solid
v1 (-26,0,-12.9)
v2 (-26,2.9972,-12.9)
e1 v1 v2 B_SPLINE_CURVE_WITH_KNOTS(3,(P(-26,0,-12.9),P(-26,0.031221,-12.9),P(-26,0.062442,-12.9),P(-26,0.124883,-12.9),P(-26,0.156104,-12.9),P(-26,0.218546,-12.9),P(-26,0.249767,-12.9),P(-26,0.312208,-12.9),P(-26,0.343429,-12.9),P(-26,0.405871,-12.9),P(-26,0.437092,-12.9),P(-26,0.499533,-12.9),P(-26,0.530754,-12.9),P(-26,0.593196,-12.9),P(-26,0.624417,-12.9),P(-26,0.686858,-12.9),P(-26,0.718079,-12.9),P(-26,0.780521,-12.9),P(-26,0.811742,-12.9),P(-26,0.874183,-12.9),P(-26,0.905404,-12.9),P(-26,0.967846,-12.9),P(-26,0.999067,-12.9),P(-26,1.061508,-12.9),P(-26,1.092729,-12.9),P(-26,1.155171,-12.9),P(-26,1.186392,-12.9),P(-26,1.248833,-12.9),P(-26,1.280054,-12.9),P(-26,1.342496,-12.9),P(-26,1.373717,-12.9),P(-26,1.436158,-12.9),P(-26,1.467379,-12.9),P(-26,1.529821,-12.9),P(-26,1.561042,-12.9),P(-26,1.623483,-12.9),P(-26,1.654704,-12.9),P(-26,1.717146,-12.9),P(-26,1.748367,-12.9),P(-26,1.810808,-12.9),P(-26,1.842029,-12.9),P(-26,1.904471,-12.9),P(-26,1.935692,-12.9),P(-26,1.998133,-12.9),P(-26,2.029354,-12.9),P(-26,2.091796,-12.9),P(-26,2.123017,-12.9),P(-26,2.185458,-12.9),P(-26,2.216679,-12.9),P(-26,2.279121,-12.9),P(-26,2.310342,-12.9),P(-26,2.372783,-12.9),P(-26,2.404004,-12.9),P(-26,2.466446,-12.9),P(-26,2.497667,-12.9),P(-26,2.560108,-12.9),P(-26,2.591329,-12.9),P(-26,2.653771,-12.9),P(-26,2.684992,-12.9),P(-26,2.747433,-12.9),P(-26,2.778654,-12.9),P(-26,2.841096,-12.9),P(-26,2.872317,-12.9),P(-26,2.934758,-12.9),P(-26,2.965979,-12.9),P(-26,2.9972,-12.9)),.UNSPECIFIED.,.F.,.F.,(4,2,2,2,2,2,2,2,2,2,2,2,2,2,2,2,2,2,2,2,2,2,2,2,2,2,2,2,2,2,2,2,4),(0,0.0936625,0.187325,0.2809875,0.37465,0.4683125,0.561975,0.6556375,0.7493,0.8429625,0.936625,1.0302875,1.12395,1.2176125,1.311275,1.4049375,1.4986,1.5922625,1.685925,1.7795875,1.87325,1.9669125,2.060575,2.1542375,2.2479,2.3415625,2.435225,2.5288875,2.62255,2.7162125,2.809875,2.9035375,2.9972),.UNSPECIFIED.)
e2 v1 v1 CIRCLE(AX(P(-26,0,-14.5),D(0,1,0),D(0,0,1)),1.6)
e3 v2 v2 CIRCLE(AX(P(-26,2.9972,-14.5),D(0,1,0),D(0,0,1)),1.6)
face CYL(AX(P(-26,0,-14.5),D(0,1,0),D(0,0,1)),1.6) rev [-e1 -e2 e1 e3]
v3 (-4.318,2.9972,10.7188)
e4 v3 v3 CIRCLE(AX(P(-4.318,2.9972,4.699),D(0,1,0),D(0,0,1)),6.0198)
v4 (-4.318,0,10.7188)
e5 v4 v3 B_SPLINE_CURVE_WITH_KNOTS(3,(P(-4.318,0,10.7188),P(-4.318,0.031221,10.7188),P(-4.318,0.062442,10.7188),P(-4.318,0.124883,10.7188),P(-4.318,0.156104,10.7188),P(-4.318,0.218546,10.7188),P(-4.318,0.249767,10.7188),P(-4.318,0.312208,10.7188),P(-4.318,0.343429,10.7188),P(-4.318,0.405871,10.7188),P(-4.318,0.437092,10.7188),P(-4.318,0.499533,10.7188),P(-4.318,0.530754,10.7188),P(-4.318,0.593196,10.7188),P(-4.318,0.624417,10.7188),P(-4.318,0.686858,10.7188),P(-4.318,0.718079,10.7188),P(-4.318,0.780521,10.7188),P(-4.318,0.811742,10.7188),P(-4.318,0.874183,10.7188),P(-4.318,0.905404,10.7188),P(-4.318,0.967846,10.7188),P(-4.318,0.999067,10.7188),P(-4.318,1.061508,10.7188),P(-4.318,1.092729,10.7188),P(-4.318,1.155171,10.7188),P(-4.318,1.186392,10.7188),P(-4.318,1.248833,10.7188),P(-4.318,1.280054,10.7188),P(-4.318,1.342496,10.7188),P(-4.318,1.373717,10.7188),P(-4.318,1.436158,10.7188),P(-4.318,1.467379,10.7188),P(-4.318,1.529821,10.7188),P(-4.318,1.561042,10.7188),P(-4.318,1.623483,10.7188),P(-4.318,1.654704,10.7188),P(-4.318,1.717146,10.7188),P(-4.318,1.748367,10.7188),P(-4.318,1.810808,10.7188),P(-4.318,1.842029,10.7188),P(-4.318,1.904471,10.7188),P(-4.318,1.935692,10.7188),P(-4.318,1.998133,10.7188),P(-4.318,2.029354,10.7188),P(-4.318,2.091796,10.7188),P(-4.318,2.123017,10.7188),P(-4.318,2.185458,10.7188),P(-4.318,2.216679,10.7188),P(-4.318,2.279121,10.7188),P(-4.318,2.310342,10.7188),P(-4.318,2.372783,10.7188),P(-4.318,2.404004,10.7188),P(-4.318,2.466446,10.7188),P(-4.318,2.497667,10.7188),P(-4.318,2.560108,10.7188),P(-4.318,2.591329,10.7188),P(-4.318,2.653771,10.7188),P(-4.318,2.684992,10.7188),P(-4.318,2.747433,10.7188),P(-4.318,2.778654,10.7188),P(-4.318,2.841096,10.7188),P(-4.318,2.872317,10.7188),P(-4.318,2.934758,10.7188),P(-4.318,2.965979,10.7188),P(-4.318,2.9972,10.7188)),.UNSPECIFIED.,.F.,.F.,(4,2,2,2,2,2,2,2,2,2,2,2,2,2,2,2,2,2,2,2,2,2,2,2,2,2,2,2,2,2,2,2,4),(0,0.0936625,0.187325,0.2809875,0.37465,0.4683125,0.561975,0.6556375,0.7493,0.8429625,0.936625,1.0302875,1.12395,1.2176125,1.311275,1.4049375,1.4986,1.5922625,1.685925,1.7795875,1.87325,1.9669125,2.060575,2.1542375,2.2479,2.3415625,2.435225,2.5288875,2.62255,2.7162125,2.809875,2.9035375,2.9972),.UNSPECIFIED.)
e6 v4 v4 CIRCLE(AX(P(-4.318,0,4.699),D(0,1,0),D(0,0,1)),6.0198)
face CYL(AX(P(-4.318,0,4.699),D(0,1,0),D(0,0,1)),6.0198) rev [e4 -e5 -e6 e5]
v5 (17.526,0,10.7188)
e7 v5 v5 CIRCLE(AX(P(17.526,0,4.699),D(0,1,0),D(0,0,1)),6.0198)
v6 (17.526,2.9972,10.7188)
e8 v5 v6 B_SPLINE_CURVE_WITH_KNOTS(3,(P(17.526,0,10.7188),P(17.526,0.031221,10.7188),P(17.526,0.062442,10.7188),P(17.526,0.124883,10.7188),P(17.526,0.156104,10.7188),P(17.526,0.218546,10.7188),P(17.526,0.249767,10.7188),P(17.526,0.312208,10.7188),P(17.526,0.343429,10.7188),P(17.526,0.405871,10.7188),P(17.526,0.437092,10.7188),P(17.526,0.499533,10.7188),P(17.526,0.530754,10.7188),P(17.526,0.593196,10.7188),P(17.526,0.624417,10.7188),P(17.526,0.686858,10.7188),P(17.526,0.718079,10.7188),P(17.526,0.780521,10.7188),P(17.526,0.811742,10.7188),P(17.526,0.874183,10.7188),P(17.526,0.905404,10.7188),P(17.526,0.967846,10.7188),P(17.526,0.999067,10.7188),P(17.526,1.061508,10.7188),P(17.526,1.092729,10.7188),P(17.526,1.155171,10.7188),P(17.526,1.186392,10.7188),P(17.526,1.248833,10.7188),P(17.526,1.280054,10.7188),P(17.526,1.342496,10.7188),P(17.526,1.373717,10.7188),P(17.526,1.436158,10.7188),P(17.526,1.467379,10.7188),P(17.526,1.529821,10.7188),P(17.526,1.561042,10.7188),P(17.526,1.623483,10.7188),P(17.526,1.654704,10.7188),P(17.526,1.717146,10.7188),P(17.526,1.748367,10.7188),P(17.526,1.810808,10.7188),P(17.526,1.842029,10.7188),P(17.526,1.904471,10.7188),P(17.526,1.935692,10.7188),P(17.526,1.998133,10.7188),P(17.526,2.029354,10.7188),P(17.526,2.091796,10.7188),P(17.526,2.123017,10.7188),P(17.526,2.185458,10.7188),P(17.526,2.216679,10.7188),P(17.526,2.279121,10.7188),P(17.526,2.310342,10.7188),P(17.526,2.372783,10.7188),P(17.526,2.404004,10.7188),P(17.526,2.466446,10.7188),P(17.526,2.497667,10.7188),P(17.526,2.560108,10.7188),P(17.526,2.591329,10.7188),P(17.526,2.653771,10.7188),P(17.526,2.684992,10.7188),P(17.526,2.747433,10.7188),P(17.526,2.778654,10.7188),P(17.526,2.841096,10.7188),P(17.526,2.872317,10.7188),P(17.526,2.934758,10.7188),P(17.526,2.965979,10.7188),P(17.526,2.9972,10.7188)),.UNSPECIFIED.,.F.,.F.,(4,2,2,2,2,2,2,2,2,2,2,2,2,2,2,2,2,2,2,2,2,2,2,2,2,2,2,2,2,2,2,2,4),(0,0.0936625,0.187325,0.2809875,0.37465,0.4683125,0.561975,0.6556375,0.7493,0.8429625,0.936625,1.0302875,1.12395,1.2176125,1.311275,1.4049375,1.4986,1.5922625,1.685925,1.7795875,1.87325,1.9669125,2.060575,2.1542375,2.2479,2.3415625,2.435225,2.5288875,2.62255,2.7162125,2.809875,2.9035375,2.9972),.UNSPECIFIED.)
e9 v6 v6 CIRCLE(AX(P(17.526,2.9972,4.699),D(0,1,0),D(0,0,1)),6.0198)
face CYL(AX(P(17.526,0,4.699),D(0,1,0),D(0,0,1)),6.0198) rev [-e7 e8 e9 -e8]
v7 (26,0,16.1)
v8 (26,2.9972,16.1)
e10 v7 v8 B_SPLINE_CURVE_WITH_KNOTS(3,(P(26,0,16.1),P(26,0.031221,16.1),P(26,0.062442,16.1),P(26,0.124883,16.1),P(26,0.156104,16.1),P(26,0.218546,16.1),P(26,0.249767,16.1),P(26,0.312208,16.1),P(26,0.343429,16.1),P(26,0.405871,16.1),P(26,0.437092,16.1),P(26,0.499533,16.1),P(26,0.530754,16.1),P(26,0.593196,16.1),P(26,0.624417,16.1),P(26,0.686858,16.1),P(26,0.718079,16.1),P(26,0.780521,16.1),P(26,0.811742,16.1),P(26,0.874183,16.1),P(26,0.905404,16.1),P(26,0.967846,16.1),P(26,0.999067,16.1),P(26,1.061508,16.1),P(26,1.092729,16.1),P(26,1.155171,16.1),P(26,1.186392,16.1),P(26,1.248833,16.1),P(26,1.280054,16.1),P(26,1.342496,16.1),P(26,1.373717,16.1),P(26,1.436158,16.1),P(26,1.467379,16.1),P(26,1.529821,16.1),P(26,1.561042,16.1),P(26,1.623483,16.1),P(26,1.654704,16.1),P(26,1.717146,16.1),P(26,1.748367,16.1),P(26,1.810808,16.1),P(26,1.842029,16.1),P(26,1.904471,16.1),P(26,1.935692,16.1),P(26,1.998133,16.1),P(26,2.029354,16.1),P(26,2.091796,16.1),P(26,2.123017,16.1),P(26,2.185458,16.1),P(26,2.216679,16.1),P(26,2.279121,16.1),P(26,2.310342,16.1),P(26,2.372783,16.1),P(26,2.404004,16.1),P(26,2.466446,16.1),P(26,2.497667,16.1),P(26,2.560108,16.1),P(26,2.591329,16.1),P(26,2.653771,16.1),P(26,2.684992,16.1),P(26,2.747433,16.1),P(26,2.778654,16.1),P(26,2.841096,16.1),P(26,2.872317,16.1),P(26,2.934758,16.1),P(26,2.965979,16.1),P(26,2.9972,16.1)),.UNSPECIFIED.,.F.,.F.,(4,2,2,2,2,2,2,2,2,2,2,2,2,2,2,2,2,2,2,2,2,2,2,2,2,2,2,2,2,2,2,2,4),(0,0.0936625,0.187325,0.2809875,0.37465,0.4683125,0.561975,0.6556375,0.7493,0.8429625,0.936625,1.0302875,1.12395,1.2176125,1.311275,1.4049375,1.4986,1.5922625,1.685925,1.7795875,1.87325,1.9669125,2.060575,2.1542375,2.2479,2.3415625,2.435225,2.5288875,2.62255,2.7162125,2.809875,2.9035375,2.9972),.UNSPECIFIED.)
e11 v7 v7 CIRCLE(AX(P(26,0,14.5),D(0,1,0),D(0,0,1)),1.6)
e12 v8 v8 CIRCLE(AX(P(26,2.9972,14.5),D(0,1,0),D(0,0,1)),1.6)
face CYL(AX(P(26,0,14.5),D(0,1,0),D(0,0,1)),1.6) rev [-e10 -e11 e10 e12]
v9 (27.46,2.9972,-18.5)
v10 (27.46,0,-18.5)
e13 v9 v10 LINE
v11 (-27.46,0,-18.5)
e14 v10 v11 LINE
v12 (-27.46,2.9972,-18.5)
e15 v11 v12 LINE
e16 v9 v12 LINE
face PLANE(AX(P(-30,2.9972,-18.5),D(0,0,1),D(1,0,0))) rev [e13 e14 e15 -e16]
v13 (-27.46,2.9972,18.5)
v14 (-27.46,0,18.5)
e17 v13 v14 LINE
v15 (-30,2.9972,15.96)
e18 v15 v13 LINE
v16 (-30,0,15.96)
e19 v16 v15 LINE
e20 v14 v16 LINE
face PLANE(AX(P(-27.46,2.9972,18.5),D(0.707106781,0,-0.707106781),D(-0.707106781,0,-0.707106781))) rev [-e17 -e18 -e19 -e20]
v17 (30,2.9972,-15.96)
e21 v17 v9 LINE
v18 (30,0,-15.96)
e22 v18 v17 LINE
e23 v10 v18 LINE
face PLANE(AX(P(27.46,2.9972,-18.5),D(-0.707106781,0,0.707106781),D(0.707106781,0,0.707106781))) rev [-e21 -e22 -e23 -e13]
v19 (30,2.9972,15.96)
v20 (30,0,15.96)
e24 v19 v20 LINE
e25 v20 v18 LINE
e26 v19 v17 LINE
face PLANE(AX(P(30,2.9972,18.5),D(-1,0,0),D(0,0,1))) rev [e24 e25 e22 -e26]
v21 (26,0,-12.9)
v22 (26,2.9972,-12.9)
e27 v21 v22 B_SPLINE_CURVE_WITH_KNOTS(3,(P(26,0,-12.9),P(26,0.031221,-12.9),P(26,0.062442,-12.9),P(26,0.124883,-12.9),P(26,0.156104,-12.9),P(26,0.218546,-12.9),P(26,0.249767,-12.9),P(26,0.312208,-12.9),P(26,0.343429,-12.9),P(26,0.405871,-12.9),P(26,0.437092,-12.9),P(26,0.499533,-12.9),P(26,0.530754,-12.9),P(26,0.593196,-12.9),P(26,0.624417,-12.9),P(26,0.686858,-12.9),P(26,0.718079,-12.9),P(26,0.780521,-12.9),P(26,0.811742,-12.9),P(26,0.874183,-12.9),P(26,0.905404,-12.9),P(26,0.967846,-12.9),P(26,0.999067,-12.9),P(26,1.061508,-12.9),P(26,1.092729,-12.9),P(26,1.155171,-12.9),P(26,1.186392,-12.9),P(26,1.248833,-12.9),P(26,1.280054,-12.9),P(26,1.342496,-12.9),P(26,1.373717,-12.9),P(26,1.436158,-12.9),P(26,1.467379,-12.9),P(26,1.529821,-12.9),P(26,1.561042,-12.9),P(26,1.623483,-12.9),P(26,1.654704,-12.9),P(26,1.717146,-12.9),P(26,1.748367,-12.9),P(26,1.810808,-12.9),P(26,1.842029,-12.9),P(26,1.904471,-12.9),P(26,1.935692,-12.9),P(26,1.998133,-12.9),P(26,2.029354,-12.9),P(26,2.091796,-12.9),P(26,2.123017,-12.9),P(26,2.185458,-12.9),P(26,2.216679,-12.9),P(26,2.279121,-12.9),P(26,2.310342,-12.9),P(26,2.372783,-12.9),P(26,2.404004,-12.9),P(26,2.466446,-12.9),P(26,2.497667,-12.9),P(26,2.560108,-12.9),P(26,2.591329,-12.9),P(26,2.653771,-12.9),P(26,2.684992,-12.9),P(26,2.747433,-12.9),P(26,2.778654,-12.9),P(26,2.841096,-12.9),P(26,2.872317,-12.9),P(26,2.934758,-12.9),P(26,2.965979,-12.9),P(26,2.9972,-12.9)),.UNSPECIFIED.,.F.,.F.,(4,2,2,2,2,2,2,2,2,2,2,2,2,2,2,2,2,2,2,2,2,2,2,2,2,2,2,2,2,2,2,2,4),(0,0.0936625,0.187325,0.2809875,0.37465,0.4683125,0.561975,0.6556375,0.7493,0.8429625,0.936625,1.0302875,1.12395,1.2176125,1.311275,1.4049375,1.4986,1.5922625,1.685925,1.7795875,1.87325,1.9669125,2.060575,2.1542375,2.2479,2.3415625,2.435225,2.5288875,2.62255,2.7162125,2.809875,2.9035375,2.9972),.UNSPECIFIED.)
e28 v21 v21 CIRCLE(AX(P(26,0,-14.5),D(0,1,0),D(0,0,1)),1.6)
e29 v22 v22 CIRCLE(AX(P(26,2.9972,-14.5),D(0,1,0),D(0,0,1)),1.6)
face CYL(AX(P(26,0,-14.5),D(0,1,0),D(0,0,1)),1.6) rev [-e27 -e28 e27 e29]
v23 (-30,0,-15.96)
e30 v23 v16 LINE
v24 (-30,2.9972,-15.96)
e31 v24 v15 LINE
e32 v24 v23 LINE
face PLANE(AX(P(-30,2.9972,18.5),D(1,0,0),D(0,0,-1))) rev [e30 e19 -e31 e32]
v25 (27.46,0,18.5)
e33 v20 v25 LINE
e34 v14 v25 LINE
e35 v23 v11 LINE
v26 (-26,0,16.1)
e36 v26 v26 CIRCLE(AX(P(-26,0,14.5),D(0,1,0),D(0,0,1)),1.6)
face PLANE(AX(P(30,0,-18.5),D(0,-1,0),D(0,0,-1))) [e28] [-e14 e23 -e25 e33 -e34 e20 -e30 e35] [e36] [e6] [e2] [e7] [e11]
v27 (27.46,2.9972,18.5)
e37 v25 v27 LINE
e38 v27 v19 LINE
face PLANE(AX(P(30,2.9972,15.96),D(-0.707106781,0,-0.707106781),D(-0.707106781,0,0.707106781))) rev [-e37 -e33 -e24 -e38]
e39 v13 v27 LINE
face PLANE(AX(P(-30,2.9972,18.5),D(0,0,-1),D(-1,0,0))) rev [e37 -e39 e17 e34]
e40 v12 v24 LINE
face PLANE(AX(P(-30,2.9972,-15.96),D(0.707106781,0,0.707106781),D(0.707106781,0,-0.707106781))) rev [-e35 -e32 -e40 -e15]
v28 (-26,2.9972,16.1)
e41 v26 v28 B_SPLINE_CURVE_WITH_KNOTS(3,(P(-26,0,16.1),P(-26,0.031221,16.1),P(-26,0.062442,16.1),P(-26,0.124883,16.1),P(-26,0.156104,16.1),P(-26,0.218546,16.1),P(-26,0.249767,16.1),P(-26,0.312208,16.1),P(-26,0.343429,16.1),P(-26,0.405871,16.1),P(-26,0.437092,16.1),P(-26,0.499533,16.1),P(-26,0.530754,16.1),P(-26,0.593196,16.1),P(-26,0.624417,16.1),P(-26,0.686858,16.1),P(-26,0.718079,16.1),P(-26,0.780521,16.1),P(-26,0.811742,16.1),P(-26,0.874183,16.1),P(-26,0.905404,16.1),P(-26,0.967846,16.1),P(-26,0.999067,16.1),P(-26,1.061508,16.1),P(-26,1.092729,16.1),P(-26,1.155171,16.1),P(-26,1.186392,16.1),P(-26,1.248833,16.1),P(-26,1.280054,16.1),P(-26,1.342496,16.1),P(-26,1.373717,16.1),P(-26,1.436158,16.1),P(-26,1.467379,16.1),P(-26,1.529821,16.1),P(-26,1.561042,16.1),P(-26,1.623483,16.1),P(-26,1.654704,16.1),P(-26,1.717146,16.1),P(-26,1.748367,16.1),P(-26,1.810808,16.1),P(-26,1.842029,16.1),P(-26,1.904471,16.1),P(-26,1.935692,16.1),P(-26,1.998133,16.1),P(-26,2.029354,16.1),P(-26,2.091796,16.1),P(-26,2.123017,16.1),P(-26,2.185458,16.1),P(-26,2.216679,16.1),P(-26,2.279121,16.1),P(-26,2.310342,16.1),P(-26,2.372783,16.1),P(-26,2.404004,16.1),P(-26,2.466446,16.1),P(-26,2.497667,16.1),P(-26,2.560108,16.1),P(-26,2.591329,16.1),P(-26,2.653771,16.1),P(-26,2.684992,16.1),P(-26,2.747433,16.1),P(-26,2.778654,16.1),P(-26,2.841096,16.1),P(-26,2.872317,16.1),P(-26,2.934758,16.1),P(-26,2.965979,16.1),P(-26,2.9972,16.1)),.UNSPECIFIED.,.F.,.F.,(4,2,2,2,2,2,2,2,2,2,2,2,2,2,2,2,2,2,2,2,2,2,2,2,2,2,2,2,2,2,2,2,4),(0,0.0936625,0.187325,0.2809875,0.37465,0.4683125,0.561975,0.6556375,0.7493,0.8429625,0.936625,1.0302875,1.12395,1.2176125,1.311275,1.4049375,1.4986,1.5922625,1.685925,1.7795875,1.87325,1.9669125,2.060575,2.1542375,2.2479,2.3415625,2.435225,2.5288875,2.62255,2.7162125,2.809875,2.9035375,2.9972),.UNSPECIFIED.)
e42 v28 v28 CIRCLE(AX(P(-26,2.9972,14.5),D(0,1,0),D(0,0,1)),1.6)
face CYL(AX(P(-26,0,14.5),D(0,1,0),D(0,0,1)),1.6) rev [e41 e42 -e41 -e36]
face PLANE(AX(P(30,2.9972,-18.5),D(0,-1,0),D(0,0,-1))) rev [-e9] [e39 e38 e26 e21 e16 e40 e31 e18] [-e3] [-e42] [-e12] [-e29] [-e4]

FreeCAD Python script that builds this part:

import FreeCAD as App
import Part
import Sketcher
from FreeCAD import Vector
Q = App.Units.Quantity


def edges_at(feature, points):
    """Names of the edges that pass closest to the given points."""
    edges = feature.Shape.Edges
    near = lambda p: min(range(len(edges)), key=lambda i: edges[i].distToShape(Part.Vertex(*p))[0])
    return sorted({f"Edge{near(p) + 1}" for p in points})


def add_polygon(sketch, points):
    """Adds a closed chain of lines whose ends are joined by coincident constraints."""
    first, n = sketch.GeometryCount, len(points)
    for a, b in zip(points, points[1:] + points[:1]):
        sketch.addGeometry(Part.LineSegment(App.Vector(*a, 0), App.Vector(*b, 0)), False)
    for i in range(n):
        sketch.addConstraint(Sketcher.Constraint("Coincident", first + i, 2, first + (i + 1) % n, 1))

doc = App.newDocument("Part")
params = doc.addObject("Spreadsheet::Sheet", "Params")
for row, (alias, value) in enumerate([
    ("sketch1_width", "60 mm"),
    ("sketch1_height", "37 mm"),
    ("pad1_length", "2.9972 mm"),
    ("sketch2_diameter", "3.2 mm"),
    ("chamfer_size", "2.54 mm"),
], start=1):
    params.set(f"A{row}", alias)
    params.set(f"B{row}", "=" + value)
    params.setAlias(f"B{row}", alias)

body = doc.addObject("PartDesign::Body", "Body")

# Sketch on XZ plane
sketch1 = body.newObject("Sketcher::SketchObject", "Sketch")
sketch1.AttachmentSupport = (doc.getObject("XZ_Plane"), [""])
sketch1.MapMode = "FlatFace"
add_polygon(sketch1, [(-30, -18), (-30, 18), (30, 18), (30, -18)])  # lines 0-3
sketch1.addConstraint(Sketcher.Constraint("Vertical", 0))
sketch1.addConstraint(Sketcher.Constraint("Horizontal", 1))
sketch1.addConstraint(Sketcher.Constraint("Vertical", 2))
sketch1.addConstraint(Sketcher.Constraint("Horizontal", 3))
sketch1.addConstraint(Sketcher.Constraint("Symmetric", 0, 2, 2, 2, -1, 1))
sketch1.addConstraint(Sketcher.Constraint("DistanceX", 1, 1, 1, 2, Q("60 mm")))
sketch1.addConstraint(Sketcher.Constraint("DistanceY", 0, 1, 0, 2, Q("37 mm")))
sketch1.setExpression("Constraints[9]", "Params.sketch1_width")
sketch1.setExpression("Constraints[10]", "Params.sketch1_height")
pad1 = body.newObject("PartDesign::Pad", "Pad")
pad1.Profile = sketch1
pad1.setExpression("Length", "Params.pad1_length")
pad1.Reversed = True

# Sketch on XZ plane
sketch2 = body.newObject("Sketcher::SketchObject", "Sketch001")
sketch2.AttachmentSupport = (doc.getObject("XZ_Plane"), [""])
sketch2.MapMode = "FlatFace"
sketch2.AttachmentOffset = App.Placement(Vector(0, 0, -2.9972), App.Rotation())
sketch2.addGeometry(Part.Circle(Vector(-26, -14.5, 0), Vector(0, 0, 1), 1.6), False)
sketch2.addGeometry(Part.Circle(Vector(-26, 14.5, 0), Vector(0, 0, 1), 1.6), False)
sketch2.addGeometry(Part.Circle(Vector(26, 14.5, 0), Vector(0, 0, 1), 1.6), False)
sketch2.addGeometry(Part.Circle(Vector(26, -14.5, 0), Vector(0, 0, 1), 1.6), False)
sketch2.addConstraint(Sketcher.Constraint("Equal", 0, 1))
sketch2.addConstraint(Sketcher.Constraint("Equal", 1, 2))
sketch2.addConstraint(Sketcher.Constraint("Equal", 2, 3))
sketch2.addConstraint(Sketcher.Constraint("Symmetric", 0, 3, 2, 3, -1, 1))
sketch2.addConstraint(Sketcher.Constraint("Symmetric", 1, 3, 3, 3, -1, 1))
sketch2.addConstraint(Sketcher.Constraint("Symmetric", 1, 3, 2, 3, -2))
sketch2.addConstraint(Sketcher.Constraint("Diameter", 0, Q("3.2 mm")))
sketch2.addConstraint(Sketcher.Constraint("DistanceX", 0, 3, -1, 1, Q("26 mm")))
sketch2.addConstraint(Sketcher.Constraint("DistanceY", 0, 3, 1, 3, Q("29 mm")))
sketch2.setExpression("Constraints[6]", "Params.sketch2_diameter")
pocket1 = body.newObject("PartDesign::Pocket", "Pocket")
pocket1.Profile = sketch2
pocket1.Type = "ThroughAll"
pocket1.Reversed = True

# Sketch on XZ plane
sketch3 = body.newObject("Sketcher::SketchObject", "Sketch002")
sketch3.AttachmentSupport = (doc.getObject("XZ_Plane"), [""])
sketch3.MapMode = "FlatFace"
sketch3.AttachmentOffset = App.Placement(Vector(0, 0, -2.9972), App.Rotation())
sketch3.addGeometry(Part.Circle(Vector(-4, 5, 0), Vector(0, 0, 1), 6), False)
sketch3.addGeometry(Part.Circle(Vector(18, 5, 0), Vector(0, 0, 1), 6), False)
sketch3.addConstraint(Sketcher.Constraint("Equal", 0, 1))
sketch3.addConstraint(Sketcher.Constraint("Horizontal", 0, 3, 1, 3))
sketch3.addConstraint(Sketcher.Constraint("Diameter", 0, Q("12.0396 mm")))
sketch3.addConstraint(Sketcher.Constraint("DistanceX", 0, 3, -1, 1, Q("4.318 mm")))
sketch3.addConstraint(Sketcher.Constraint("DistanceY", -1, 1, 0, 3, Q("4.699 mm")))
sketch3.addConstraint(Sketcher.Constraint("DistanceX", -1, 1, 1, 3, Q("17.526 mm")))
pocket2 = body.newObject("PartDesign::Pocket", "Pocket001")
pocket2.Profile = sketch3
pocket2.Type = "ThroughAll"
pocket2.Reversed = True
doc.recompute()

chamfer = body.newObject("PartDesign::Chamfer", "Chamfer")
chamfer.Base = (pocket2, edges_at(pocket2, [
    (30, 1.499, 18.5),
    (-30, 1.499, 18.5),
    (-30, 1.499, -18.5),
    (30, 1.499, -18.5),
]))
chamfer.setExpression("Size", "Params.chamfer_size")

doc.recompute()
